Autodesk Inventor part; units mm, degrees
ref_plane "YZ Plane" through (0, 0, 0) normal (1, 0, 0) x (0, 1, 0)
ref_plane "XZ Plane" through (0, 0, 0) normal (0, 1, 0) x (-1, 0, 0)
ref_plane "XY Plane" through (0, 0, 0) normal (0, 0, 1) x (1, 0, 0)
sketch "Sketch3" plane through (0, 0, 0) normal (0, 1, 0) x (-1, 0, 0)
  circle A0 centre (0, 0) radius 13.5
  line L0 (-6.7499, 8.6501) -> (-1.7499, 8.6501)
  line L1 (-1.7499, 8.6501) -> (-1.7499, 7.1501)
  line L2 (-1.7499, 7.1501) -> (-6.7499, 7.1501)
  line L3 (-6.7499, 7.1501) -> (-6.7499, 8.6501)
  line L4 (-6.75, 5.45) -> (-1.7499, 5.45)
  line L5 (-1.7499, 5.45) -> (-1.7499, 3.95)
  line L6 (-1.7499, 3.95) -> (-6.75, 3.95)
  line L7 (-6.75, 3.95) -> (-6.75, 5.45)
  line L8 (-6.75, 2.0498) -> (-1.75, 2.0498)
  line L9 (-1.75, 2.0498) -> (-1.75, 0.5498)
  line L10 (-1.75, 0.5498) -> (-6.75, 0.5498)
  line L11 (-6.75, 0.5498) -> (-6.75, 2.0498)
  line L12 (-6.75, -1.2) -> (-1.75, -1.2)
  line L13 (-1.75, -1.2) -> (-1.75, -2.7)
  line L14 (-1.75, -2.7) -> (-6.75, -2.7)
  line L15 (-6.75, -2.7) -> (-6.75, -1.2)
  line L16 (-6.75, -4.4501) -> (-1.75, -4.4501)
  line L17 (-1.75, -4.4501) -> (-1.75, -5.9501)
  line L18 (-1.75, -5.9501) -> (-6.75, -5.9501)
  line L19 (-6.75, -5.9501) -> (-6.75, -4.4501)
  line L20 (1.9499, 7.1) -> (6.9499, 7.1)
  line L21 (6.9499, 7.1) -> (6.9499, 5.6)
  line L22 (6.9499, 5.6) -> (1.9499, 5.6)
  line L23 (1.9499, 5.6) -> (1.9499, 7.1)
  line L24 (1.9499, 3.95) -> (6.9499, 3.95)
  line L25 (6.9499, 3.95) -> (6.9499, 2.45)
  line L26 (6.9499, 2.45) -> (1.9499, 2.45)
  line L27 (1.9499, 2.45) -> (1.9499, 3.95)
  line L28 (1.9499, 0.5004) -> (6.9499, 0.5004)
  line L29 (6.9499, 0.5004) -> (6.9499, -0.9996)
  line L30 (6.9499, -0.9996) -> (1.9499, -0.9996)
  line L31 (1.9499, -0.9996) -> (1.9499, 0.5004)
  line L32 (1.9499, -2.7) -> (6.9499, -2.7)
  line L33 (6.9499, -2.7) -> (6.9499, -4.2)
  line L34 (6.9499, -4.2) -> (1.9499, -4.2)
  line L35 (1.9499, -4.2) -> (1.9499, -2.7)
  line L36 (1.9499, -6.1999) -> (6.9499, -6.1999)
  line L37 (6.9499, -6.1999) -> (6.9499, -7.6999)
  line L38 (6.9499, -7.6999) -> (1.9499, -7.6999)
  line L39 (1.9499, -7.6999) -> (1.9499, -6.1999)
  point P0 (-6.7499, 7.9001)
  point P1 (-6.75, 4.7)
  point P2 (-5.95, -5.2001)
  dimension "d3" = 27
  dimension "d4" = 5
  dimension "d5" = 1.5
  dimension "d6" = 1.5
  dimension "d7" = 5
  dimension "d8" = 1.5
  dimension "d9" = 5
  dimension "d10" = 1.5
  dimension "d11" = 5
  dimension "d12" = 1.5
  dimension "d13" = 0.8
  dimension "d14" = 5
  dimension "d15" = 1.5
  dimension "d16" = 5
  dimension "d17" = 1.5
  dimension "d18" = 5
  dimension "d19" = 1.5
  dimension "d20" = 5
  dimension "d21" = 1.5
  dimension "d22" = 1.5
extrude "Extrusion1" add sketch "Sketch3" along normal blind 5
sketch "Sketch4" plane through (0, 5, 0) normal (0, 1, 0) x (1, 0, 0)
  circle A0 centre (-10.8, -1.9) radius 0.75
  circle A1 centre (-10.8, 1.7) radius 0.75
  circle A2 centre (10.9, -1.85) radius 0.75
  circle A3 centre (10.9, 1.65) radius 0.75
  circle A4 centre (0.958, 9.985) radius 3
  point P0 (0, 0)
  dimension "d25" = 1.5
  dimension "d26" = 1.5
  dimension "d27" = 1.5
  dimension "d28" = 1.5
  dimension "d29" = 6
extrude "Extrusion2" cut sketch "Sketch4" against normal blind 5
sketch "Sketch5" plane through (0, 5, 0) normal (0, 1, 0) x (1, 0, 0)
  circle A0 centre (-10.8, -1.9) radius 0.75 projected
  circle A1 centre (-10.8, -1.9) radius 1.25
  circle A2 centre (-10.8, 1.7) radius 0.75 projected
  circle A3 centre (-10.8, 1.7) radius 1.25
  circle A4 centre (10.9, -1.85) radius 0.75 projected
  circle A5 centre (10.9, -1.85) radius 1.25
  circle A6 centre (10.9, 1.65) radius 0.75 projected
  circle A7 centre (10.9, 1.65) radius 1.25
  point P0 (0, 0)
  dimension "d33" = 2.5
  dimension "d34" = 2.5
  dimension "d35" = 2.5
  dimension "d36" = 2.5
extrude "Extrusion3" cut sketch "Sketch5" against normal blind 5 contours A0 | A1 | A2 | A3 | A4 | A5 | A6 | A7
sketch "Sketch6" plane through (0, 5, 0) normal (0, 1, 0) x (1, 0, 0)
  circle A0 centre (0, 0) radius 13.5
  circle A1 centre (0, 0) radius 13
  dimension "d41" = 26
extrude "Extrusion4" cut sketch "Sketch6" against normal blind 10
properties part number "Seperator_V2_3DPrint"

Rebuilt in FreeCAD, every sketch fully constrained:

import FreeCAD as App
import Part
import Sketcher

doc = App.newDocument("Part")
body = doc.addObject("PartDesign::Body", "Body")

# Sketch on XZ plane
sketch1 = body.newObject("Sketcher::SketchObject", "Sketch")
sketch1.AttachmentSupport = (doc.getObject("XZ_Plane"), [""])
sketch1.MapMode = "FlatFace"
sketch1.addGeometry(Part.Circle(App.Vector(0, 0, 0), App.Vector(0, 0, 1), 13.5), False)
sketch1.addGeometry(Part.LineSegment(App.Vector(6.8, -6, 0), App.Vector(6.8, -4.5, 0)), False)
sketch1.addGeometry(Part.LineSegment(App.Vector(6.8, -4.5, 0), App.Vector(1.8, -4.5, 0)), False)
sketch1.addGeometry(Part.LineSegment(App.Vector(1.8, -4.5, 0), App.Vector(1.8, -6, 0)), False)
sketch1.addGeometry(Part.LineSegment(App.Vector(1.8, -6, 0), App.Vector(6.8, -6, 0)), False)
sketch1.addGeometry(Part.LineSegment(App.Vector(6.8, -2.7, 0), App.Vector(6.8, -1.2, 0)), False)
sketch1.addGeometry(Part.LineSegment(App.Vector(6.8, -1.2, 0), App.Vector(1.8, -1.2, 0)), False)
sketch1.addGeometry(Part.LineSegment(App.Vector(1.8, -1.2, 0), App.Vector(1.8, -2.7, 0)), False)
sketch1.addGeometry(Part.LineSegment(App.Vector(1.8, -2.7, 0), App.Vector(6.8, -2.7, 0)), False)
sketch1.addGeometry(Part.LineSegment(App.Vector(-1.9, -7.7, 0), App.Vector(-1.9, -6.2, 0)), False)
sketch1.addGeometry(Part.LineSegment(App.Vector(-1.9, -6.2, 0), App.Vector(-6.9, -6.2, 0)), False)
sketch1.addGeometry(Part.LineSegment(App.Vector(-6.9, -6.2, 0), App.Vector(-6.9, -7.7, 0)), False)
sketch1.addGeometry(Part.LineSegment(App.Vector(-6.9, -7.7, 0), App.Vector(-1.9, -7.7, 0)), False)
sketch1.addGeometry(Part.LineSegment(App.Vector(-1.9, -4.2, 0), App.Vector(-1.9, -2.7, 0)), False)
sketch1.addGeometry(Part.LineSegment(App.Vector(-1.9, -2.7, 0), App.Vector(-6.9, -2.7, 0)), False)
sketch1.addGeometry(Part.LineSegment(App.Vector(-6.9, -2.7, 0), App.Vector(-6.9, -4.2, 0)), False)
sketch1.addGeometry(Part.LineSegment(App.Vector(-6.9, -4.2, 0), App.Vector(-1.9, -4.2, 0)), False)
sketch1.addGeometry(Part.LineSegment(App.Vector(-1.9, -1, 0), App.Vector(-1.9, 0.5, 0)), False)
sketch1.addGeometry(Part.LineSegment(App.Vector(-1.9, 0.5, 0), App.Vector(-6.9, 0.5, 0)), False)
sketch1.addGeometry(Part.LineSegment(App.Vector(-6.9, 0.5, 0), App.Vector(-6.9, -1, 0)), False)
sketch1.addGeometry(Part.LineSegment(App.Vector(-6.9, -1, 0), App.Vector(-1.9, -1, 0)), False)
sketch1.addGeometry(Part.LineSegment(App.Vector(6.8, 0.5, 0), App.Vector(6.8, 2, 0)), False)
sketch1.addGeometry(Part.LineSegment(App.Vector(6.8, 2, 0), App.Vector(1.8, 2, 0)), False)
sketch1.addGeometry(Part.LineSegment(App.Vector(1.8, 2, 0), App.Vector(1.8, 0.5, 0)), False)
sketch1.addGeometry(Part.LineSegment(App.Vector(1.8, 0.5, 0), App.Vector(6.8, 0.5, 0)), False)
sketch1.addGeometry(Part.LineSegment(App.Vector(6.8, 4, 0), App.Vector(6.8, 5.5, 0)), False)
sketch1.addGeometry(Part.LineSegment(App.Vector(6.8, 5.5, 0), App.Vector(1.7, 5.5, 0)), False)
sketch1.addGeometry(Part.LineSegment(App.Vector(1.7, 5.5, 0), App.Vector(1.7, 4, 0)), False)
sketch1.addGeometry(Part.LineSegment(App.Vector(1.7, 4, 0), App.Vector(6.8, 4, 0)), False)
sketch1.addGeometry(Part.LineSegment(App.Vector(6.7, 7.2, 0), App.Vector(6.7, 8.7, 0)), False)
sketch1.addGeometry(Part.LineSegment(App.Vector(6.7, 8.7, 0), App.Vector(1.7, 8.7, 0)), False)
sketch1.addGeometry(Part.LineSegment(App.Vector(1.7, 8.7, 0), App.Vector(1.7, 7.2, 0)), False)
sketch1.addGeometry(Part.LineSegment(App.Vector(1.7, 7.2, 0), App.Vector(6.7, 7.2, 0)), False)
sketch1.addGeometry(Part.LineSegment(App.Vector(-1.9, 2.5, 0), App.Vector(-1.9, 4, 0)), False)
sketch1.addGeometry(Part.LineSegment(App.Vector(-1.9, 4, 0), App.Vector(-6.9, 4, 0)), False)
sketch1.addGeometry(Part.LineSegment(App.Vector(-6.9, 4, 0), App.Vector(-6.9, 2.5, 0)), False)
sketch1.addGeometry(Part.LineSegment(App.Vector(-6.9, 2.5, 0), App.Vector(-1.9, 2.5, 0)), False)
sketch1.addGeometry(Part.LineSegment(App.Vector(-1.9, 5.6, 0), App.Vector(-1.9, 7.1, 0)), False)
sketch1.addGeometry(Part.LineSegment(App.Vector(-1.9, 7.1, 0), App.Vector(-6.9, 7.1, 0)), False)
sketch1.addGeometry(Part.LineSegment(App.Vector(-6.9, 7.1, 0), App.Vector(-6.9, 5.6, 0)), False)
sketch1.addGeometry(Part.LineSegment(App.Vector(-6.9, 5.6, 0), App.Vector(-1.9, 5.6, 0)), False)
sketch1.addConstraint(Sketcher.Constraint("Coincident", 1, 2, 2, 1))
sketch1.addConstraint(Sketcher.Constraint("Coincident", 2, 2, 3, 1))
sketch1.addConstraint(Sketcher.Constraint("Coincident", 3, 2, 4, 1))
sketch1.addConstraint(Sketcher.Constraint("Coincident", 4, 2, 1, 1))
sketch1.addConstraint(Sketcher.Constraint("Coincident", 5, 2, 6, 1))
sketch1.addConstraint(Sketcher.Constraint("Coincident", 6, 2, 7, 1))
sketch1.addConstraint(Sketcher.Constraint("Coincident", 7, 2, 8, 1))
sketch1.addConstraint(Sketcher.Constraint("Coincident", 8, 2, 5, 1))
sketch1.addConstraint(Sketcher.Constraint("Coincident", 9, 2, 10, 1))
sketch1.addConstraint(Sketcher.Constraint("Coincident", 10, 2, 11, 1))
sketch1.addConstraint(Sketcher.Constraint("Coincident", 11, 2, 12, 1))
sketch1.addConstraint(Sketcher.Constraint("Coincident", 12, 2, 9, 1))
sketch1.addConstraint(Sketcher.Constraint("Coincident", 13, 2, 14, 1))
sketch1.addConstraint(Sketcher.Constraint("Coincident", 14, 2, 15, 1))
sketch1.addConstraint(Sketcher.Constraint("Coincident", 15, 2, 16, 1))
sketch1.addConstraint(Sketcher.Constraint("Coincident", 16, 2, 13, 1))
sketch1.addConstraint(Sketcher.Constraint("Coincident", 17, 2, 18, 1))
sketch1.addConstraint(Sketcher.Constraint("Coincident", 18, 2, 19, 1))
sketch1.addConstraint(Sketcher.Constraint("Coincident", 19, 2, 20, 1))
sketch1.addConstraint(Sketcher.Constraint("Coincident", 20, 2, 17, 1))
sketch1.addConstraint(Sketcher.Constraint("Coincident", 21, 2, 22, 1))
sketch1.addConstraint(Sketcher.Constraint("Coincident", 22, 2, 23, 1))
sketch1.addConstraint(Sketcher.Constraint("Coincident", 23, 2, 24, 1))
sketch1.addConstraint(Sketcher.Constraint("Coincident", 24, 2, 21, 1))
sketch1.addConstraint(Sketcher.Constraint("Coincident", 25, 2, 26, 1))
sketch1.addConstraint(Sketcher.Constraint("Coincident", 26, 2, 27, 1))
sketch1.addConstraint(Sketcher.Constraint("Coincident", 27, 2, 28, 1))
sketch1.addConstraint(Sketcher.Constraint("Coincident", 28, 2, 25, 1))
sketch1.addConstraint(Sketcher.Constraint("Coincident", 29, 2, 30, 1))
sketch1.addConstraint(Sketcher.Constraint("Coincident", 30, 2, 31, 1))
sketch1.addConstraint(Sketcher.Constraint("Coincident", 31, 2, 32, 1))
sketch1.addConstraint(Sketcher.Constraint("Coincident", 32, 2, 29, 1))
sketch1.addConstraint(Sketcher.Constraint("Coincident", 33, 2, 34, 1))
sketch1.addConstraint(Sketcher.Constraint("Coincident", 34, 2, 35, 1))
sketch1.addConstraint(Sketcher.Constraint("Coincident", 35, 2, 36, 1))
sketch1.addConstraint(Sketcher.Constraint("Coincident", 36, 2, 33, 1))
sketch1.addConstraint(Sketcher.Constraint("Coincident", 37, 2, 38, 1))
sketch1.addConstraint(Sketcher.Constraint("Coincident", 38, 2, 39, 1))
sketch1.addConstraint(Sketcher.Constraint("Coincident", 39, 2, 40, 1))
sketch1.addConstraint(Sketcher.Constraint("Coincident", 40, 2, 37, 1))
sketch1.addConstraint(Sketcher.Constraint("Vertical", 1))
sketch1.addConstraint(Sketcher.Constraint("Horizontal", 2))
sketch1.addConstraint(Sketcher.Constraint("Vertical", 3))
sketch1.addConstraint(Sketcher.Constraint("Horizontal", 4))
sketch1.addConstraint(Sketcher.Constraint("Vertical", 5))
sketch1.addConstraint(Sketcher.Constraint("Horizontal", 6))
sketch1.addConstraint(Sketcher.Constraint("Vertical", 7))
sketch1.addConstraint(Sketcher.Constraint("Horizontal", 8))
sketch1.addConstraint(Sketcher.Constraint("Vertical", 9))
sketch1.addConstraint(Sketcher.Constraint("Horizontal", 10))
sketch1.addConstraint(Sketcher.Constraint("Vertical", 11))
sketch1.addConstraint(Sketcher.Constraint("Horizontal", 12))
sketch1.addConstraint(Sketcher.Constraint("Vertical", 13))
sketch1.addConstraint(Sketcher.Constraint("Horizontal", 14))
sketch1.addConstraint(Sketcher.Constraint("Vertical", 15))
sketch1.addConstraint(Sketcher.Constraint("Horizontal", 16))
sketch1.addConstraint(Sketcher.Constraint("Vertical", 17))
sketch1.addConstraint(Sketcher.Constraint("Horizontal", 18))
sketch1.addConstraint(Sketcher.Constraint("Vertical", 19))
sketch1.addConstraint(Sketcher.Constraint("Horizontal", 20))
sketch1.addConstraint(Sketcher.Constraint("Vertical", 21))
sketch1.addConstraint(Sketcher.Constraint("Horizontal", 22))
sketch1.addConstraint(Sketcher.Constraint("Vertical", 23))
sketch1.addConstraint(Sketcher.Constraint("Horizontal", 24))
sketch1.addConstraint(Sketcher.Constraint("Vertical", 25))
sketch1.addConstraint(Sketcher.Constraint("Horizontal", 26))
sketch1.addConstraint(Sketcher.Constraint("Vertical", 27))
sketch1.addConstraint(Sketcher.Constraint("Horizontal", 28))
sketch1.addConstraint(Sketcher.Constraint("Vertical", 29))
sketch1.addConstraint(Sketcher.Constraint("Horizontal", 30))
sketch1.addConstraint(Sketcher.Constraint("Vertical", 31))
sketch1.addConstraint(Sketcher.Constraint("Horizontal", 32))
sketch1.addConstraint(Sketcher.Constraint("Vertical", 33))
sketch1.addConstraint(Sketcher.Constraint("Horizontal", 34))
sketch1.addConstraint(Sketcher.Constraint("Vertical", 35))
sketch1.addConstraint(Sketcher.Constraint("Horizontal", 36))
sketch1.addConstraint(Sketcher.Constraint("Vertical", 37))
sketch1.addConstraint(Sketcher.Constraint("Horizontal", 38))
sketch1.addConstraint(Sketcher.Constraint("Vertical", 39))
sketch1.addConstraint(Sketcher.Constraint("Horizontal", 40))
sketch1.addConstraint(Sketcher.Constraint("Coincident", 0, 3, -1, 1))
sketch1.addConstraint(Sketcher.Constraint("Horizontal", 8, 2, 13, 2))
sketch1.addConstraint(Sketcher.Constraint("Horizontal", 28, 2, 33, 2))
sketch1.addConstraint(Sketcher.Constraint("Vertical", 4, 2, 5, 2))
sketch1.addConstraint(Sketcher.Constraint("Vertical", 3, 2, 6, 2))
sketch1.addConstraint(Sketcher.Constraint("Vertical", 12, 2, 13, 2))
sketch1.addConstraint(Sketcher.Constraint("Vertical", 11, 2, 14, 2))
sketch1.addConstraint(Sketcher.Constraint("Vertical", 16, 2, 17, 2))
sketch1.addConstraint(Sketcher.Constraint("Vertical", 15, 2, 18, 2))
sketch1.addConstraint(Sketcher.Constraint("Vertical", 8, 2, 21, 2))
sketch1.addConstraint(Sketcher.Constraint("Vertical", 7, 2, 22, 2))
sketch1.addConstraint(Sketcher.Constraint("Vertical", 24, 2, 25, 2))
sketch1.addConstraint(Sketcher.Constraint("Vertical", 23, 2, 26, 2))
sketch1.addConstraint(Sketcher.Constraint("Vertical", 28, 2, 29, 2))
sketch1.addConstraint(Sketcher.Constraint("Vertical", 27, 2, 30, 2))
sketch1.addConstraint(Sketcher.Constraint("Vertical", 20, 2, 33, 2))
sketch1.addConstraint(Sketcher.Constraint("Vertical", 19, 2, 34, 2))
sketch1.addConstraint(Sketcher.Constraint("Vertical", 36, 2, 37, 2))
sketch1.addConstraint(Sketcher.Constraint("Vertical", 35, 2, 38, 2))
sketch1.addConstraint(Sketcher.Constraint("Equal", 8, 10))
sketch1.addConstraint(Sketcher.Constraint("Equal", 3, 5))
sketch1.addConstraint(Sketcher.Constraint("Equal", 7, 9))
sketch1.addConstraint(Sketcher.Constraint("Equal", 11, 13))
sketch1.addConstraint(Sketcher.Constraint("Equal", 15, 17))
sketch1.addConstraint(Sketcher.Constraint("Equal", 19, 21))
sketch1.addConstraint(Sketcher.Constraint("Equal", 23, 25))
sketch1.addConstraint(Sketcher.Constraint("Equal", 27, 29))
sketch1.addConstraint(Sketcher.Constraint("Equal", 31, 33))
sketch1.addConstraint(Sketcher.Constraint("Equal", 35, 37))
sketch1.addConstraint(Sketcher.Constraint("Diameter", 0, 27.0))
sketch1.addConstraint(Sketcher.Constraint("DistanceX", 2, 2, 2, 1, 5.0))
sketch1.addConstraint(Sketcher.Constraint("DistanceY", 1, 1, 1, 2, 1.5))
sketch1.addConstraint(Sketcher.Constraint("DistanceY", 9, 2, 6, 2, 5.0))
sketch1.addConstraint(Sketcher.Constraint("DistanceY", 1, 2, 24, 2, 5.0))
sketch1.addConstraint(Sketcher.Constraint("DistanceY", 5, 2, -1, 1, 1.2))
sketch1.addConstraint(Sketcher.Constraint("DistanceY", -1, 1, 37, 2, 7.1))
sketch1.addConstraint(Sketcher.Constraint("DistanceX", 9, 2, 3, 2, 3.7))
sketch1.addConstraint(Sketcher.Constraint("DistanceY", 25, 2, 29, 2, 3.2))
sketch1.addConstraint(Sketcher.Constraint("DistanceX", -1, 1, 1, 2, 6.75))
sketch1.addConstraint(Sketcher.Constraint("DistanceY", 1, 2, -1, 1, 4.45))
sketch1.addConstraint(Sketcher.Constraint("DistanceY", -1, 1, 25, 2, 5.45))
sketch1.addConstraint(Sketcher.Constraint("DistanceY", -1, 1, 17, 2, 0.5004))
pad1 = body.newObject("PartDesign::Pad", "Pad")
pad1.Profile = sketch1
pad1.Length = 5
pad1.Reversed = True

# Sketch on XZ plane
sketch2 = body.newObject("Sketcher::SketchObject", "Sketch001")
sketch2.AttachmentSupport = (doc.getObject("XZ_Plane"), [""])
sketch2.MapMode = "FlatFace"
sketch2.AttachmentOffset = App.Placement(App.Vector(0, 0, -5), App.Rotation())
sketch2.addGeometry(Part.Circle(App.Vector(-10.8, 1.9, 0), App.Vector(0, 0, 1), 0.8), False)
sketch2.addGeometry(Part.Circle(App.Vector(-10.8, -1.7, 0), App.Vector(0, 0, 1), 0.8), False)
sketch2.addGeometry(Part.Circle(App.Vector(10.9, 1.9, 0), App.Vector(0, 0, 1), 0.8), False)
sketch2.addGeometry(Part.Circle(App.Vector(10.9, -1.6, 0), App.Vector(0, 0, 1), 0.8), False)
sketch2.addGeometry(Part.Circle(App.Vector(1, -10, 0), App.Vector(0, 0, 1), 3), False)
sketch2.addConstraint(Sketcher.Constraint("Equal", 0, 1))
sketch2.addConstraint(Sketcher.Constraint("Equal", 1, 2))
sketch2.addConstraint(Sketcher.Constraint("Equal", 2, 3))
sketch2.addConstraint(Sketcher.Constraint("Vertical", 0, 3, 1, 3))
sketch2.addConstraint(Sketcher.Constraint("Vertical", 2, 3, 3, 3))
sketch2.addConstraint(Sketcher.Constraint("Diameter", 4, 6.0))
sketch2.addConstraint(Sketcher.Constraint("Diameter", 0, 1.5))
sketch2.addConstraint(Sketcher.Constraint("DistanceX", 0, 3, -1, 1, 10.8))
sketch2.addConstraint(Sketcher.Constraint("DistanceY", -1, 1, 0, 3, 1.9))
sketch2.addConstraint(Sketcher.Constraint("DistanceY", 1, 3, -1, 1, 1.7))
sketch2.addConstraint(Sketcher.Constraint("DistanceX", -1, 1, 2, 3, 10.9))
sketch2.addConstraint(Sketcher.Constraint("DistanceY", 3, 3, 2, 3, 3.5))
sketch2.addConstraint(Sketcher.Constraint("DistanceY", -1, 1, 2, 3, 1.85))
sketch2.addConstraint(Sketcher.Constraint("DistanceX", -1, 1, 4, 3, 0.958))
sketch2.addConstraint(Sketcher.Constraint("DistanceY", 4, 3, -1, 1, 9.985))
pocket1 = body.newObject("PartDesign::Pocket", "Pocket")
pocket1.Profile = sketch2
pocket1.Length = 5
pocket1.Reversed = True

# Sketch on XZ plane
sketch3 = body.newObject("Sketcher::SketchObject", "Sketch002")
sketch3.AttachmentSupport = (doc.getObject("XZ_Plane"), [""])
sketch3.MapMode = "FlatFace"
sketch3.AttachmentOffset = App.Placement(App.Vector(0, 0, -5), App.Rotation())
sketch3.addGeometry(Part.Circle(App.Vector(-10.8, 1.9, 0), App.Vector(0, 0, 1), 1.2), False)
sketch3.addGeometry(Part.Circle(App.Vector(-10.8, -1.7, 0), App.Vector(0, 0, 1), 1.2), False)
sketch3.addGeometry(Part.Circle(App.Vector(10.9, 1.9, 0), App.Vector(0, 0, 1), 1.2), False)
sketch3.addGeometry(Part.Circle(App.Vector(10.9, -1.6, 0), App.Vector(0, 0, 1), 1.2), False)
sketch3.addConstraint(Sketcher.Constraint("Equal", 0, 1))
sketch3.addConstraint(Sketcher.Constraint("Equal", 1, 2))
sketch3.addConstraint(Sketcher.Constraint("Equal", 2, 3))
sketch3.addConstraint(Sketcher.Constraint("Vertical", 0, 3, 1, 3))
sketch3.addConstraint(Sketcher.Constraint("Vertical", 2, 3, 3, 3))
sketch3.addConstraint(Sketcher.Constraint("Diameter", 0, 2.5))
sketch3.addConstraint(Sketcher.Constraint("DistanceX", 0, 3, -1, 1, 10.8))
sketch3.addConstraint(Sketcher.Constraint("DistanceY", -1, 1, 0, 3, 1.9))
sketch3.addConstraint(Sketcher.Constraint("DistanceY", 1, 3, -1, 1, 1.7))
sketch3.addConstraint(Sketcher.Constraint("DistanceX", -1, 1, 2, 3, 10.9))
sketch3.addConstraint(Sketcher.Constraint("DistanceY", 3, 3, 2, 3, 3.5))
sketch3.addConstraint(Sketcher.Constraint("DistanceY", -1, 1, 2, 3, 1.85))
pocket2 = body.newObject("PartDesign::Pocket", "Pocket001")
pocket2.Profile = sketch3
pocket2.Length = 5
pocket2.Reversed = True

# Sketch on XZ plane
sketch4 = body.newObject("Sketcher::SketchObject", "Sketch003")
sketch4.AttachmentSupport = (doc.getObject("XZ_Plane"), [""])
sketch4.MapMode = "FlatFace"
sketch4.AttachmentOffset = App.Placement(App.Vector(0, 0, -5), App.Rotation())
sketch4.addGeometry(Part.Circle(App.Vector(0, 0, 0), App.Vector(0, 0, 1), 14), False)
sketch4.addGeometry(Part.Circle(App.Vector(0, 0, 0), App.Vector(0, 0, 1), 13), False)
sketch4.addConstraint(Sketcher.Constraint("Coincident", 0, 3, -1, 1))
sketch4.addConstraint(Sketcher.Constraint("Coincident", 1, 3, -1, 1))
sketch4.addConstraint(Sketcher.Constraint("Diameter", 1, 26.0))
sketch4.addConstraint(Sketcher.Constraint("Diameter", 0, 27.0))
pocket3 = body.newObject("PartDesign::Pocket", "Pocket002")
pocket3.Profile = sketch4
pocket3.Length = 10
pocket3.Reversed = True

doc.recompute()
